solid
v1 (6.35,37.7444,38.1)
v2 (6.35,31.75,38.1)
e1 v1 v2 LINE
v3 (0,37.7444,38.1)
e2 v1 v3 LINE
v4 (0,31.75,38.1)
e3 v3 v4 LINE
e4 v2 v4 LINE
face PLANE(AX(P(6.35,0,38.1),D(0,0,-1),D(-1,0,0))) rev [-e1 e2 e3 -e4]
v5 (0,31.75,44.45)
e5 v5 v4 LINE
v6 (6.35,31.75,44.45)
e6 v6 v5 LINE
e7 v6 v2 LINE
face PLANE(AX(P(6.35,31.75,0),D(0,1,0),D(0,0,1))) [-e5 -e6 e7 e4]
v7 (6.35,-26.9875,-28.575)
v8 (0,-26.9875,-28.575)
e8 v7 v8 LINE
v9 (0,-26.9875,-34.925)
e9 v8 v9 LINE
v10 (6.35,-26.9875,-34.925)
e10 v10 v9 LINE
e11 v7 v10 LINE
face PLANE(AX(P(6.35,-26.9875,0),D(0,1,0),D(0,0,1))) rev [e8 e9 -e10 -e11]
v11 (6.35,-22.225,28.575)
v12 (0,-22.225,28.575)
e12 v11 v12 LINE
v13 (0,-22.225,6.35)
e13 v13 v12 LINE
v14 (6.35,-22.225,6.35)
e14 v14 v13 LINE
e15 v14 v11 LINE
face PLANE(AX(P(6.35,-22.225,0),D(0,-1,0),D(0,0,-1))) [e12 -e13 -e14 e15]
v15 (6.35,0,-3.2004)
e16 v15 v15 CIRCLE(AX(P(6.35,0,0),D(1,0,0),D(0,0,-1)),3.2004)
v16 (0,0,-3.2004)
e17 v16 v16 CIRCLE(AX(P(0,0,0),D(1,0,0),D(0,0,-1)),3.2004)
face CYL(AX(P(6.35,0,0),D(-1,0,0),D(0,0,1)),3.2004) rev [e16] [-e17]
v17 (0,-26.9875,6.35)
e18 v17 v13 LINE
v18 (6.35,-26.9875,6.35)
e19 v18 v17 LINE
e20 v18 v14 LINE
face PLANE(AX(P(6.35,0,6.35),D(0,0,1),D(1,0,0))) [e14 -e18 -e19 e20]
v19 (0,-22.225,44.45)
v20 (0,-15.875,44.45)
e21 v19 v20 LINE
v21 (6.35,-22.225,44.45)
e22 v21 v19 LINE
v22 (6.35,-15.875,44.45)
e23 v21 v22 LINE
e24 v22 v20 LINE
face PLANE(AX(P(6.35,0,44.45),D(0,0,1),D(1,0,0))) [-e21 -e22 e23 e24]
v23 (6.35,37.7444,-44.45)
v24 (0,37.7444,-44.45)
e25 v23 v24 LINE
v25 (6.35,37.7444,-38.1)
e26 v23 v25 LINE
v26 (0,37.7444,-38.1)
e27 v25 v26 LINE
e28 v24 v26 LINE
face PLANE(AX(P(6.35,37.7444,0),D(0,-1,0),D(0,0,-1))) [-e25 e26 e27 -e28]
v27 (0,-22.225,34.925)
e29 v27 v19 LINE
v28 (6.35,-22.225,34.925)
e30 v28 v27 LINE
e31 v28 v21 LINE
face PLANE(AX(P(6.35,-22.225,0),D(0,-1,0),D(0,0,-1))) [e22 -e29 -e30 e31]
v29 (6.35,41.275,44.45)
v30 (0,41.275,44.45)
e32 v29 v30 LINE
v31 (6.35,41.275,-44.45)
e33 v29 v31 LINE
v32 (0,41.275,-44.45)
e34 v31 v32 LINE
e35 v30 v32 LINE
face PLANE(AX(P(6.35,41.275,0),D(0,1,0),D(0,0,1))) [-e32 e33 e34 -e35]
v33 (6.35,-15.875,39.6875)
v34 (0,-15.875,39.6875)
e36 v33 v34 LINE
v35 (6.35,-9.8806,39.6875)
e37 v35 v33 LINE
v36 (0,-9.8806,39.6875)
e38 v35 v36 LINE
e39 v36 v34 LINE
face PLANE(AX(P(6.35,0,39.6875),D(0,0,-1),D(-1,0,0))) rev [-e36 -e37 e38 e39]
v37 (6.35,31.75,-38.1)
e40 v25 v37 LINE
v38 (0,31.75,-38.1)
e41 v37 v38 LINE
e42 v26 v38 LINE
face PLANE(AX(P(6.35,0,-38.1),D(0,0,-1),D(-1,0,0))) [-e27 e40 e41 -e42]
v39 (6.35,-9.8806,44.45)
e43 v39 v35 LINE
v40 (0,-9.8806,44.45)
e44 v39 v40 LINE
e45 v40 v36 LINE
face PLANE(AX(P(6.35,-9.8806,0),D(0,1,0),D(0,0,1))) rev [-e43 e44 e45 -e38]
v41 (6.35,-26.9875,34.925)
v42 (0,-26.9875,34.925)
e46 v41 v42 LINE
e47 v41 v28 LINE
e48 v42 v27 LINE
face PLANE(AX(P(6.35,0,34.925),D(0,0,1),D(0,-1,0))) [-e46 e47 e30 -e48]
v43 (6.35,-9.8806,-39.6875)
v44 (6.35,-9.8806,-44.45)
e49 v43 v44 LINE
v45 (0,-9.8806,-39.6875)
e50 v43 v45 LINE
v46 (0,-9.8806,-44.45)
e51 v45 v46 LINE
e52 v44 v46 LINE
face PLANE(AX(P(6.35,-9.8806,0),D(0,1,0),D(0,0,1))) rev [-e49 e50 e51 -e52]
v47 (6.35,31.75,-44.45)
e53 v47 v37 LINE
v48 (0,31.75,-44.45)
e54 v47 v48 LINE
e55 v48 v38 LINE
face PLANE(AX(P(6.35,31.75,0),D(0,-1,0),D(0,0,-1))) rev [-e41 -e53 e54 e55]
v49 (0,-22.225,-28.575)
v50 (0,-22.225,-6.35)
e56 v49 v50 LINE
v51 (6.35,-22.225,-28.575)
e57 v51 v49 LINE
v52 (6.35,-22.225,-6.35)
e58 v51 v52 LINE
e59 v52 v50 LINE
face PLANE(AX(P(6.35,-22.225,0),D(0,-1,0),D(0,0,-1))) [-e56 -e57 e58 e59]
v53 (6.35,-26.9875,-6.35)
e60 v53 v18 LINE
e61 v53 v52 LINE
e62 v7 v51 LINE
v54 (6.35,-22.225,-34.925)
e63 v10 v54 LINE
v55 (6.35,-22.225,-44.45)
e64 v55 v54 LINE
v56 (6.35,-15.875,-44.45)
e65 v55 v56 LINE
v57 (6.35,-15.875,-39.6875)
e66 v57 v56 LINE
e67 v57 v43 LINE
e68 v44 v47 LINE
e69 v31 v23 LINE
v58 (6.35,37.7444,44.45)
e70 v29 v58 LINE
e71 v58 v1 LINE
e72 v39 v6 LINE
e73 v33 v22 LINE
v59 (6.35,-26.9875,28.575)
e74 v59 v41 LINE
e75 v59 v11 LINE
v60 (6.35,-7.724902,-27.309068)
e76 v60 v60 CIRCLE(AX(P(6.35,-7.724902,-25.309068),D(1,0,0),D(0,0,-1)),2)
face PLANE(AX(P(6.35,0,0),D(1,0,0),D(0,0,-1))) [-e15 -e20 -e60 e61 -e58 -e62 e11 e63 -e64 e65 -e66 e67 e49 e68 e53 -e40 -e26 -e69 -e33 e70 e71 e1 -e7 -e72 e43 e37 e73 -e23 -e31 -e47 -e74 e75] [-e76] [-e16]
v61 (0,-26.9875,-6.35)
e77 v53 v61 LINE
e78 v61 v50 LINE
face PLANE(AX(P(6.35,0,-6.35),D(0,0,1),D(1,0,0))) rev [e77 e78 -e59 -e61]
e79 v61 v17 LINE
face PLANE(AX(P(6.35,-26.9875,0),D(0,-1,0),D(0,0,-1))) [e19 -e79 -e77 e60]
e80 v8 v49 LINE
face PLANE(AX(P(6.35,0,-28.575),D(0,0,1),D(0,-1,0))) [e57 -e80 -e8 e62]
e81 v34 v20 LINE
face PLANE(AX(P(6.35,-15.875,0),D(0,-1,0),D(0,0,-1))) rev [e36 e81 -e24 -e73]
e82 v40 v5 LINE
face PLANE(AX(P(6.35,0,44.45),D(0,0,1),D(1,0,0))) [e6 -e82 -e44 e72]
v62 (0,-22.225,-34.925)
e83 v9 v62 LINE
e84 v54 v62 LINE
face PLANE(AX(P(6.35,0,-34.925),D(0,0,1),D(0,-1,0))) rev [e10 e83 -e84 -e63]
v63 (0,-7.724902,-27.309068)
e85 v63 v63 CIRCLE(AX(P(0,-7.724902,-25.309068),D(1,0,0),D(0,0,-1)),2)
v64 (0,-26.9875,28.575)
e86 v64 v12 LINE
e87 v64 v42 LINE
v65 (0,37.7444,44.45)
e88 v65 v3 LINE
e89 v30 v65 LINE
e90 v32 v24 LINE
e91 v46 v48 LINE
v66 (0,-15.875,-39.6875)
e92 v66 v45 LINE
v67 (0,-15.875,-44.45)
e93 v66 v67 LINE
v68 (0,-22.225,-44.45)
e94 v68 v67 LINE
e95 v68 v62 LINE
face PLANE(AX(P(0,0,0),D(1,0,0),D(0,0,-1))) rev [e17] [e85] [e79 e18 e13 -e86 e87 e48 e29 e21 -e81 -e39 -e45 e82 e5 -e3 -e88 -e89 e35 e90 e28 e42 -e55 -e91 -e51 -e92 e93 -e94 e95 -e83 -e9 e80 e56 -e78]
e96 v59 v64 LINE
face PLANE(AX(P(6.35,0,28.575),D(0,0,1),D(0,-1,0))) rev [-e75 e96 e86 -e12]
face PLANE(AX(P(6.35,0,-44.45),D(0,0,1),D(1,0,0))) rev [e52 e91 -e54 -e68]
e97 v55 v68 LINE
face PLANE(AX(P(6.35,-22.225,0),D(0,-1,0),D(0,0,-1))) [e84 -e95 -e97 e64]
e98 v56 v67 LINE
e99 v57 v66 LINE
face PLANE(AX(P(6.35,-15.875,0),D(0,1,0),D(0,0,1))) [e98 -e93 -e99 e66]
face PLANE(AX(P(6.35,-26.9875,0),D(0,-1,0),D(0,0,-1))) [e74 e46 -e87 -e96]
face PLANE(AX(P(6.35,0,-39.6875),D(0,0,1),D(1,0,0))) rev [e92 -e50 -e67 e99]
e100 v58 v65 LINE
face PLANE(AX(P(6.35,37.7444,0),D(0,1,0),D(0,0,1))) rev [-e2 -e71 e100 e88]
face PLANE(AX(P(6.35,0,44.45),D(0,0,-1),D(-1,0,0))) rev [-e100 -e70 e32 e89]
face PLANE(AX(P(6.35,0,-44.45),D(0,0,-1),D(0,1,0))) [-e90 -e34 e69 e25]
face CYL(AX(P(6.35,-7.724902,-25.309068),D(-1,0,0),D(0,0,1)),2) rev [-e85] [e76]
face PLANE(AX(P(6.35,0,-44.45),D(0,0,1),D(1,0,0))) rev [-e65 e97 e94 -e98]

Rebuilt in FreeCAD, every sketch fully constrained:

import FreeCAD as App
import Part
import Sketcher
Q = App.Units.Quantity

doc = App.newDocument("Part")
body = doc.addObject("PartDesign::Body", "Body")

# Sketch on YZ plane
sketch1 = body.newObject("Sketcher::SketchObject", "Sketch")
sketch1.AttachmentSupport = (doc.getObject("YZ_Plane"), [""])
sketch1.MapMode = "FlatFace"
sketch1.addGeometry(Part.LineSegment(App.Vector(-22.225, -28.575, 0), App.Vector(-26.9875, -28.575, 0)), False)
sketch1.addGeometry(Part.LineSegment(App.Vector(-26.9875, -28.575, 0), App.Vector(-26.9875, -34.925, 0)), False)
sketch1.addGeometry(Part.LineSegment(App.Vector(-26.9875, -34.925, 0), App.Vector(-22.225, -34.925, 0)), False)
sketch1.addGeometry(Part.LineSegment(App.Vector(-22.225, -34.925, 0), App.Vector(-22.225, -44.45, 0)), False)
sketch1.addGeometry(Part.LineSegment(App.Vector(-22.225, -44.45, 0), App.Vector(-15.875, -44.45, 0)), False)
sketch1.addGeometry(Part.LineSegment(App.Vector(-15.875, -44.45, 0), App.Vector(-15.875, -39.6875, 0)), False)
sketch1.addGeometry(Part.LineSegment(App.Vector(-15.875, -39.6875, 0), App.Vector(-9.8806, -39.6875, 0)), False)
sketch1.addGeometry(Part.LineSegment(App.Vector(-9.8806, -39.6875, 0), App.Vector(-9.8806, -44.45, 0)), False)
sketch1.addGeometry(Part.LineSegment(App.Vector(-9.8806, -44.45, 0), App.Vector(31.75, -44.45, 0)), False)
sketch1.addGeometry(Part.LineSegment(App.Vector(31.75, -44.45, 0), App.Vector(31.75, -38.1, 0)), False)
sketch1.addGeometry(Part.LineSegment(App.Vector(31.75, -38.1, 0), App.Vector(37.7444, -38.1, 0)), False)
sketch1.addGeometry(Part.LineSegment(App.Vector(37.7444, -38.1, 0), App.Vector(37.7444, -44.45, 0)), False)
sketch1.addGeometry(Part.LineSegment(App.Vector(37.7444, -44.45, 0), App.Vector(41.275, -44.45, 0)), False)
sketch1.addGeometry(Part.LineSegment(App.Vector(41.275, -44.45, 0), App.Vector(41.275, 44.45, 0)), False)
sketch1.addGeometry(Part.LineSegment(App.Vector(41.275, 44.45, 0), App.Vector(37.7444, 44.45, 0)), False)
sketch1.addGeometry(Part.LineSegment(App.Vector(37.7444, 44.45, 0), App.Vector(37.7444, 38.1, 0)), False)
sketch1.addGeometry(Part.LineSegment(App.Vector(37.7444, 38.1, 0), App.Vector(31.75, 38.1, 0)), False)
sketch1.addGeometry(Part.LineSegment(App.Vector(31.75, 38.1, 0), App.Vector(31.75, 44.45, 0)), False)
sketch1.addGeometry(Part.LineSegment(App.Vector(31.75, 44.45, 0), App.Vector(-9.8806, 44.45, 0)), False)
sketch1.addGeometry(Part.LineSegment(App.Vector(-9.8806, 44.45, 0), App.Vector(-9.8806, 39.6875, 0)), False)
sketch1.addGeometry(Part.LineSegment(App.Vector(-9.8806, 39.6875, 0), App.Vector(-15.875, 39.6875, 0)), False)
sketch1.addGeometry(Part.LineSegment(App.Vector(-15.875, 39.6875, 0), App.Vector(-15.875, 44.45, 0)), False)
sketch1.addGeometry(Part.LineSegment(App.Vector(-15.875, 44.45, 0), App.Vector(-22.225, 44.45, 0)), False)
sketch1.addGeometry(Part.LineSegment(App.Vector(-22.225, 44.45, 0), App.Vector(-22.225, 34.925, 0)), False)
sketch1.addGeometry(Part.LineSegment(App.Vector(-22.225, 34.925, 0), App.Vector(-26.9875, 34.925, 0)), False)
sketch1.addGeometry(Part.LineSegment(App.Vector(-26.9875, 34.925, 0), App.Vector(-26.9875, 28.575, 0)), False)
sketch1.addGeometry(Part.LineSegment(App.Vector(-26.9875, 28.575, 0), App.Vector(-22.225, 28.575, 0)), False)
sketch1.addGeometry(Part.LineSegment(App.Vector(-22.225, 28.575, 0), App.Vector(-22.225, 6.35, 0)), False)
sketch1.addGeometry(Part.LineSegment(App.Vector(-22.225, 6.35, 0), App.Vector(-26.9875, 6.35, 0)), False)
sketch1.addGeometry(Part.LineSegment(App.Vector(-26.9875, 6.35, 0), App.Vector(-26.9875, -6.35, 0)), False)
sketch1.addGeometry(Part.LineSegment(App.Vector(-26.9875, -6.35, 0), App.Vector(-22.225, -6.35, 0)), False)
sketch1.addGeometry(Part.LineSegment(App.Vector(-22.225, -6.35, 0), App.Vector(-22.225, -28.575, 0)), False)
sketch1.addGeometry(Part.Circle(App.Vector(-7.724902, -25.309068, 0), App.Vector(0, 0, 1), 2), False)
sketch1.addGeometry(Part.Circle(App.Vector(0, 0, 0), App.Vector(0, 0, 1), 3.2004), False)
sketch1.addConstraint(Sketcher.Constraint("Coincident", 0, 2, 1, 1))
sketch1.addConstraint(Sketcher.Constraint("Coincident", 1, 2, 2, 1))
sketch1.addConstraint(Sketcher.Constraint("Coincident", 2, 2, 3, 1))
sketch1.addConstraint(Sketcher.Constraint("Coincident", 3, 2, 4, 1))
sketch1.addConstraint(Sketcher.Constraint("Coincident", 4, 2, 5, 1))
sketch1.addConstraint(Sketcher.Constraint("Coincident", 5, 2, 6, 1))
sketch1.addConstraint(Sketcher.Constraint("Coincident", 6, 2, 7, 1))
sketch1.addConstraint(Sketcher.Constraint("Coincident", 7, 2, 8, 1))
sketch1.addConstraint(Sketcher.Constraint("Coincident", 8, 2, 9, 1))
sketch1.addConstraint(Sketcher.Constraint("Coincident", 9, 2, 10, 1))
sketch1.addConstraint(Sketcher.Constraint("Coincident", 10, 2, 11, 1))
sketch1.addConstraint(Sketcher.Constraint("Coincident", 11, 2, 12, 1))
sketch1.addConstraint(Sketcher.Constraint("Coincident", 12, 2, 13, 1))
sketch1.addConstraint(Sketcher.Constraint("Coincident", 13, 2, 14, 1))
sketch1.addConstraint(Sketcher.Constraint("Coincident", 14, 2, 15, 1))
sketch1.addConstraint(Sketcher.Constraint("Coincident", 15, 2, 16, 1))
sketch1.addConstraint(Sketcher.Constraint("Coincident", 16, 2, 17, 1))
sketch1.addConstraint(Sketcher.Constraint("Coincident", 17, 2, 18, 1))
sketch1.addConstraint(Sketcher.Constraint("Coincident", 18, 2, 19, 1))
sketch1.addConstraint(Sketcher.Constraint("Coincident", 19, 2, 20, 1))
sketch1.addConstraint(Sketcher.Constraint("Coincident", 20, 2, 21, 1))
sketch1.addConstraint(Sketcher.Constraint("Coincident", 21, 2, 22, 1))
sketch1.addConstraint(Sketcher.Constraint("Coincident", 22, 2, 23, 1))
sketch1.addConstraint(Sketcher.Constraint("Coincident", 23, 2, 24, 1))
sketch1.addConstraint(Sketcher.Constraint("Coincident", 24, 2, 25, 1))
sketch1.addConstraint(Sketcher.Constraint("Coincident", 25, 2, 26, 1))
sketch1.addConstraint(Sketcher.Constraint("Coincident", 26, 2, 27, 1))
sketch1.addConstraint(Sketcher.Constraint("Coincident", 27, 2, 28, 1))
sketch1.addConstraint(Sketcher.Constraint("Coincident", 28, 2, 29, 1))
sketch1.addConstraint(Sketcher.Constraint("Coincident", 29, 2, 30, 1))
sketch1.addConstraint(Sketcher.Constraint("Coincident", 30, 2, 31, 1))
sketch1.addConstraint(Sketcher.Constraint("Coincident", 31, 2, 0, 1))
sketch1.addConstraint(Sketcher.Constraint("Horizontal", 0))
sketch1.addConstraint(Sketcher.Constraint("Vertical", 1))
sketch1.addConstraint(Sketcher.Constraint("Horizontal", 2))
sketch1.addConstraint(Sketcher.Constraint("Vertical", 3))
sketch1.addConstraint(Sketcher.Constraint("Horizontal", 4))
sketch1.addConstraint(Sketcher.Constraint("Vertical", 5))
sketch1.addConstraint(Sketcher.Constraint("Horizontal", 6))
sketch1.addConstraint(Sketcher.Constraint("Vertical", 7))
sketch1.addConstraint(Sketcher.Constraint("Horizontal", 8))
sketch1.addConstraint(Sketcher.Constraint("Vertical", 9))
sketch1.addConstraint(Sketcher.Constraint("Horizontal", 10))
sketch1.addConstraint(Sketcher.Constraint("Vertical", 11))
sketch1.addConstraint(Sketcher.Constraint("Horizontal", 12))
sketch1.addConstraint(Sketcher.Constraint("Vertical", 13))
sketch1.addConstraint(Sketcher.Constraint("Horizontal", 14))
sketch1.addConstraint(Sketcher.Constraint("Vertical", 15))
sketch1.addConstraint(Sketcher.Constraint("Horizontal", 16))
sketch1.addConstraint(Sketcher.Constraint("Vertical", 17))
sketch1.addConstraint(Sketcher.Constraint("Horizontal", 18))
sketch1.addConstraint(Sketcher.Constraint("Vertical", 19))
sketch1.addConstraint(Sketcher.Constraint("Horizontal", 20))
sketch1.addConstraint(Sketcher.Constraint("Vertical", 21))
sketch1.addConstraint(Sketcher.Constraint("Horizontal", 22))
sketch1.addConstraint(Sketcher.Constraint("Vertical", 23))
sketch1.addConstraint(Sketcher.Constraint("Horizontal", 24))
sketch1.addConstraint(Sketcher.Constraint("Vertical", 25))
sketch1.addConstraint(Sketcher.Constraint("Horizontal", 26))
sketch1.addConstraint(Sketcher.Constraint("Vertical", 27))
sketch1.addConstraint(Sketcher.Constraint("Horizontal", 28))
sketch1.addConstraint(Sketcher.Constraint("Vertical", 29))
sketch1.addConstraint(Sketcher.Constraint("Horizontal", 30))
sketch1.addConstraint(Sketcher.Constraint("Vertical", 31))
sketch1.addConstraint(Sketcher.Constraint("Coincident", 33, 3, -1, 1))
sketch1.addConstraint(Sketcher.Constraint("Symmetric", 11, 2, 14, 2, -1))
sketch1.addConstraint(Sketcher.Constraint("Symmetric", 9, 2, 16, 2, -1))
sketch1.addConstraint(Sketcher.Constraint("Symmetric", 7, 2, 18, 2, -1))
sketch1.addConstraint(Sketcher.Constraint("Symmetric", 5, 2, 20, 2, -1))
sketch1.addConstraint(Sketcher.Constraint("Symmetric", 3, 2, 22, 2, -1))
sketch1.addConstraint(Sketcher.Constraint("Symmetric", 1, 2, 24, 2, -1))
sketch1.addConstraint(Sketcher.Constraint("Symmetric", 27, 2, 30, 2, -1))
sketch1.addConstraint(Sketcher.Constraint("Horizontal", 4, 2, 7, 2))
sketch1.addConstraint(Sketcher.Constraint("Horizontal", 8, 2, 11, 2))
sketch1.addConstraint(Sketcher.Constraint("Vertical", 23, 2, 26, 2))
sketch1.addConstraint(Sketcher.Constraint("Vertical", 25, 2, 28, 2))
sketch1.addConstraint(Sketcher.Constraint("Equal", 6, 10))
sketch1.addConstraint(Sketcher.Constraint("Equal", 22, 1))
sketch1.addConstraint(Sketcher.Constraint("Equal", 30, 5))
sketch1.addConstraint(Sketcher.Constraint("Equal", 1, 9))
sketch1.addConstraint(Sketcher.Constraint("Equal", 17, 25))
sketch1.addConstraint(Sketcher.Constraint("Diameter", 33, Q("0.252 in")))
sketch1.addConstraint(Sketcher.Constraint("DistanceY", 13, 1, 13, 2, Q("3.5 in")))
sketch1.addConstraint(Sketcher.Constraint("DistanceY", 29, 2, 29, 1, Q("0.5 in")))
sketch1.addConstraint(Sketcher.Constraint("DistanceY", 10, 2, 15, 2, Q("3 in")))
sketch1.addConstraint(Sketcher.Constraint("Diameter", 32, Q("4 mm")))
sketch1.addConstraint(Sketcher.Constraint("DistanceX", 0, 2, 0, 1, Q("0.1875 in")))
sketch1.addConstraint(Sketcher.Constraint("DistanceX", 6, 1, 6, 2, Q("0.236 in")))
sketch1.addConstraint(Sketcher.Constraint("DistanceX", 8, 1, 8, 2, Q("1.639 in")))
sketch1.addConstraint(Sketcher.Constraint("DistanceX", 12, 1, 12, 2, Q("0.139 in")))
sketch1.addConstraint(Sketcher.Constraint("DistanceY", 3, 2, 3, 1, Q("0.375 in")))
sketch1.addConstraint(Sketcher.Constraint("DistanceX", -1, 1, 8, 2, Q("1.25 in")))
sketch1.addConstraint(Sketcher.Constraint("DistanceX", 0, 2, 32, 3, Q("19.262598 mm")))
sketch1.addConstraint(Sketcher.Constraint("DistanceY", 32, 3, -1, 1, Q("25.309068 mm")))
pad1 = body.newObject("PartDesign::Pad", "Pad")
pad1.Profile = sketch1
pad1.Length = Q("0.25 in")

doc.recompute()
